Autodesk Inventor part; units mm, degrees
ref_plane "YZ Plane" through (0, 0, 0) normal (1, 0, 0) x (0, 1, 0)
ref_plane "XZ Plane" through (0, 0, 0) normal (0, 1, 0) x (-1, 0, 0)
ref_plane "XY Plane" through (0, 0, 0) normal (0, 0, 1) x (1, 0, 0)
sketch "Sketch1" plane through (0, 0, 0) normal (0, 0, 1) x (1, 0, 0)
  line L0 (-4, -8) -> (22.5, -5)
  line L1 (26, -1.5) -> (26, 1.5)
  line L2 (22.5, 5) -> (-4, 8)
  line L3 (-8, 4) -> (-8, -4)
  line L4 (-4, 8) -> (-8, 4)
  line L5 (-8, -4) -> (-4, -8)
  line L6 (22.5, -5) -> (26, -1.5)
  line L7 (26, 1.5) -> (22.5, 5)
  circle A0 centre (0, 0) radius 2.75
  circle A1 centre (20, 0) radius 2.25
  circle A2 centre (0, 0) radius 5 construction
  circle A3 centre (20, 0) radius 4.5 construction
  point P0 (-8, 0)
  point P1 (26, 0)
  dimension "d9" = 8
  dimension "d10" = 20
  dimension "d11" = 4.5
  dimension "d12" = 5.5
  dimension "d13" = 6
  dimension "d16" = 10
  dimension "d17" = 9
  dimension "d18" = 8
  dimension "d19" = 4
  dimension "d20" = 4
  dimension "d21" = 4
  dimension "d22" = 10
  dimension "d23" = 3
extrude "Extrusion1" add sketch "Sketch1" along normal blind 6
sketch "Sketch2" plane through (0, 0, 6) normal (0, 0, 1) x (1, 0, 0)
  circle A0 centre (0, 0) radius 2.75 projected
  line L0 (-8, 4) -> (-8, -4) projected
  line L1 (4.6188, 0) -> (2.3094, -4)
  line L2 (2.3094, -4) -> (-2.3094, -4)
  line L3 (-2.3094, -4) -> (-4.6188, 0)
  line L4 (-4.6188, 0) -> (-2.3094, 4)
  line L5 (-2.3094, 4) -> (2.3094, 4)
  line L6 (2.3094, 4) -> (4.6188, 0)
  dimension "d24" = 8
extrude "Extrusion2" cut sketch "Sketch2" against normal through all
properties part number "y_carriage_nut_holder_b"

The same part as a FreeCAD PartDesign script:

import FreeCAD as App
import Part
import Sketcher
Q = App.Units.Quantity

doc = App.newDocument("Part")
body = doc.addObject("PartDesign::Body", "Body")

# Sketch on XY plane
sketch1 = body.newObject("Sketcher::SketchObject", "Sketch")
sketch1.AttachmentSupport = (doc.getObject("XY_Plane"), [""])
sketch1.MapMode = "FlatFace"
sketch1.addGeometry([
    Part.LineSegment(App.Vector(-8, -4, 0), App.Vector(-4, -8, 0)),  # 0
    Part.LineSegment(App.Vector(-4, -8, 0), App.Vector(22.5, -5, 0)),  # 1
    Part.LineSegment(App.Vector(22.5, -5, 0), App.Vector(26, -1.5, 0)),  # 2
    Part.LineSegment(App.Vector(26, -1.5, 0), App.Vector(26, 1.5, 0)),  # 3
    Part.LineSegment(App.Vector(26, 1.5, 0), App.Vector(22.5, 5, 0)),  # 4
    Part.LineSegment(App.Vector(22.5, 5, 0), App.Vector(-4, 8, 0)),  # 5
    Part.LineSegment(App.Vector(-4, 8, 0), App.Vector(-8, 4, 0)),  # 6
    Part.LineSegment(App.Vector(-8, 4, 0), App.Vector(-8, -4, 0)),  # 7
    Part.Circle(App.Vector(0, 0, 0), App.Vector(0, 0, 1), 2.8),  # 8
    Part.Circle(App.Vector(20, 0, 0), App.Vector(0, 0, 1), 2.2),  # 9
], False)
sketch1.addConstraint([
    Sketcher.Constraint("Coincident", 0, 2, 1, 1),
    Sketcher.Constraint("Coincident", 1, 2, 2, 1),
    Sketcher.Constraint("Coincident", 2, 2, 3, 1),
    Sketcher.Constraint("Coincident", 3, 2, 4, 1),
    Sketcher.Constraint("Coincident", 4, 2, 5, 1),
    Sketcher.Constraint("Coincident", 5, 2, 6, 1),
    Sketcher.Constraint("Coincident", 6, 2, 7, 1),
    Sketcher.Constraint("Coincident", 7, 2, 0, 1),
    Sketcher.Constraint("Vertical", 3),
    Sketcher.Constraint("Vertical", 7),
    Sketcher.Constraint("Coincident", 8, 3, -1, 1),
    Sketcher.Constraint("Symmetric", 1, 2, 4, 2, -1),
    Sketcher.Constraint("Symmetric", 0, 2, 5, 2, -1),
    Sketcher.Constraint("PointOnObject", 9, 3, -1),
    Sketcher.Constraint("Perpendicular", 0, 2),
    Sketcher.Constraint("Perpendicular", 2, 4),
    Sketcher.Constraint("Perpendicular", 4, 6),
    Sketcher.Constraint("Equal", 2, 4),
    Sketcher.Constraint("Diameter", 8, 5.5),
    Sketcher.Constraint("Diameter", 9, 4.5),
    Sketcher.Constraint("DistanceY", 3, 1, 3, 2, 3.0),
    Sketcher.Constraint("DistanceY", 7, 2, 7, 1, 8.0),
    Sketcher.Constraint("DistanceX", -1, 1, 9, 3, 20.0),
    Sketcher.Constraint("DistanceX", 0, 2, -1, 1, 4.0),
    Sketcher.Constraint("DistanceY", 0, 2, -1, 1, 8.0),
    Sketcher.Constraint("DistanceY", 0, 2, 1, 2, 3.0),
    Sketcher.Constraint("DistanceX", 9, 3, 2, 2, 6.0),
])
pad1 = body.newObject("PartDesign::Pad", "Pad")
pad1.Profile = sketch1
pad1.Length = 6

# Sketch on XY plane
sketch2 = body.newObject("Sketcher::SketchObject", "Sketch001")
sketch2.AttachmentSupport = (doc.getObject("XY_Plane"), [""])
sketch2.MapMode = "FlatFace"
sketch2.AttachmentOffset = App.Placement(App.Vector(0, 0, 6), App.Rotation())
sketch2.addGeometry([
    Part.LineSegment(App.Vector(2.3, -4, 0), App.Vector(4.6, 0, 0)),  # 0
    Part.LineSegment(App.Vector(4.6, 0, 0), App.Vector(2.3, 4, 0)),  # 1
    Part.LineSegment(App.Vector(2.3, 4, 0), App.Vector(-2.3, 4, 0)),  # 2
    Part.LineSegment(App.Vector(-2.3, 4, 0), App.Vector(-4.6, 0, 0)),  # 3
    Part.LineSegment(App.Vector(-4.6, 0, 0), App.Vector(-2.3, -4, 0)),  # 4
    Part.LineSegment(App.Vector(-2.3, -4, 0), App.Vector(2.3, -4, 0)),  # 5
    Part.Circle(App.Vector(0, 0, 0), App.Vector(0, 0, 1), 2.8),  # 6
], False)
sketch2.addConstraint([
    Sketcher.Constraint("Coincident", 0, 2, 1, 1),
    Sketcher.Constraint("Coincident", 1, 2, 2, 1),
    Sketcher.Constraint("Coincident", 2, 2, 3, 1),
    Sketcher.Constraint("Coincident", 3, 2, 4, 1),
    Sketcher.Constraint("Coincident", 4, 2, 5, 1),
    Sketcher.Constraint("Coincident", 5, 2, 0, 1),
    Sketcher.Constraint("Horizontal", 2),
    Sketcher.Constraint("Horizontal", 5),
    Sketcher.Constraint("Coincident", 6, 3, -1, 1),
    Sketcher.Constraint("Symmetric", 0, 2, 3, 2, -1, 1),
    Sketcher.Constraint("Symmetric", 1, 2, 4, 2, -1, 1),
    Sketcher.Constraint("PointOnObject", 0, 2, -1),
    Sketcher.Constraint("Parallel", 0, 3),
    Sketcher.Constraint("Vertical", 2, 2, 4, 2),
    Sketcher.Constraint("DistanceY", 4, 2, 2, 2, 8.0),
    Sketcher.Constraint("Diameter", 6, 5.5),
    Sketcher.Constraint("Angle", 0, Q("60 deg")),
    Sketcher.Constraint("DistanceX", 2, 2, 2, 1, 4.6188),
])
pocket1 = body.newObject("PartDesign::Pocket", "Pocket")
pocket1.Profile = sketch2
pocket1.Type = "ThroughAll"

doc.recompute()
